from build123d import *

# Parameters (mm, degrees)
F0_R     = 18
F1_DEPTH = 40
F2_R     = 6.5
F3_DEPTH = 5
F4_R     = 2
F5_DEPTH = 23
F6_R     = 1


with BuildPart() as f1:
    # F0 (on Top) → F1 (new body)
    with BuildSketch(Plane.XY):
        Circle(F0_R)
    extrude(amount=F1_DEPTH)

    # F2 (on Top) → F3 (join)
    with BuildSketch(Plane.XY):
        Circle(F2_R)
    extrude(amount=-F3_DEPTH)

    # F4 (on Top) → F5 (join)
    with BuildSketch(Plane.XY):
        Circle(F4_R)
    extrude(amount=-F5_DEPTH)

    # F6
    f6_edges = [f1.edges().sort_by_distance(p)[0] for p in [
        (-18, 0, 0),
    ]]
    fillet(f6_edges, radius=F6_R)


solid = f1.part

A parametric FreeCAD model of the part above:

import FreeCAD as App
import Part
import Sketcher
from FreeCAD import Vector
Q = App.Units.Quantity


def edges_at(feature, points):
    """Names of the edges that pass closest to the given points."""
    edges = feature.Shape.Edges
    near = lambda p: min(range(len(edges)), key=lambda i: edges[i].distToShape(Part.Vertex(*p))[0])
    return sorted({f"Edge{near(p) + 1}" for p in points})

doc = App.newDocument("Part")
body = doc.addObject("PartDesign::Body", "Body")

sketch1 = body.newObject("Sketcher::SketchObject", "Sketch")
sketch1.AttachmentSupport = (doc.getObject("XY_Plane"), [""])
sketch1.MapMode = "FlatFace"
sketch1.addGeometry(Part.Circle(Vector(0, 0, 0), Vector(0, 0, 1), 18), False)
sketch1.addConstraint([
    Sketcher.Constraint("Coincident", 0, 3, -1, 1),
    Sketcher.Constraint("Diameter", 0, Q("36 mm")),
])
pad1 = body.newObject("PartDesign::Pad", "Pad")
pad1.Profile = sketch1
pad1.Length = 40

sketch2 = body.newObject("Sketcher::SketchObject", "Sketch001")
sketch2.AttachmentSupport = (doc.getObject("XY_Plane"), [""])
sketch2.MapMode = "FlatFace"
sketch2.addGeometry(Part.Circle(Vector(0, 0, 0), Vector(0, 0, 1), 6), False)
sketch2.addConstraint([
    Sketcher.Constraint("Coincident", 0, 3, -1, 1),
    Sketcher.Constraint("Diameter", 0, Q("13 mm")),
])
pad2 = body.newObject("PartDesign::Pad", "Pad001")
pad2.Profile = sketch2
pad2.Length = 5
pad2.Reversed = True

sketch3 = body.newObject("Sketcher::SketchObject", "Sketch002")
sketch3.AttachmentSupport = (doc.getObject("XY_Plane"), [""])
sketch3.MapMode = "FlatFace"
sketch3.addGeometry(Part.Circle(Vector(0, 0, 0), Vector(0, 0, 1), 2), False)
sketch3.addConstraint([
    Sketcher.Constraint("Coincident", 0, 3, -1, 1),
    Sketcher.Constraint("Diameter", 0, Q("4 mm")),
])
pad3 = body.newObject("PartDesign::Pad", "Pad002")
pad3.Profile = sketch3
pad3.Length = 23
pad3.Reversed = True
doc.recompute()

fillet = body.newObject("PartDesign::Fillet", "Fillet")
fillet.Base = (pad3, edges_at(pad3, [(-18, 0, 0)]))
fillet.Radius = 1

doc.recompute()
